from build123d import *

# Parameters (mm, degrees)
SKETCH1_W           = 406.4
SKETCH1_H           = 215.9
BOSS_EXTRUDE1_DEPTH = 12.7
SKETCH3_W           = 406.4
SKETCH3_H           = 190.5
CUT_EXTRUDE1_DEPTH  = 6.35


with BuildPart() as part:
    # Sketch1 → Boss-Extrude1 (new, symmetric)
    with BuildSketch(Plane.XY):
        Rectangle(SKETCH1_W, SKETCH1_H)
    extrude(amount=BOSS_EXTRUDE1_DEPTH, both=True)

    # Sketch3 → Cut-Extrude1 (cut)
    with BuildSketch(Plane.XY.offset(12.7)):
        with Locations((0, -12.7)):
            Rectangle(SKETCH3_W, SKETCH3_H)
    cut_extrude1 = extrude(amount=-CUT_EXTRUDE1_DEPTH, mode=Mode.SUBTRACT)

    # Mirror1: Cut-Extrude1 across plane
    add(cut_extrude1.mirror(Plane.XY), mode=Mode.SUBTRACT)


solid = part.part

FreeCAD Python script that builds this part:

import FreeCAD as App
import Part
import Sketcher
Q = App.Units.Quantity


def add_polygon(sketch, points):
    """Adds a closed chain of lines whose ends are joined by coincident constraints."""
    first, n = sketch.GeometryCount, len(points)
    for a, b in zip(points, points[1:] + points[:1]):
        sketch.addGeometry(Part.LineSegment(App.Vector(*a, 0), App.Vector(*b, 0)), False)
    for i in range(n):
        sketch.addConstraint(Sketcher.Constraint("Coincident", first + i, 2, first + (i + 1) % n, 1))

doc = App.newDocument("Part")
body = doc.addObject("PartDesign::Body", "Body")

# Sketch on XY plane
sketch1 = body.newObject("Sketcher::SketchObject", "Sketch")
sketch1.AttachmentSupport = (doc.getObject("XY_Plane"), [""])
sketch1.MapMode = "FlatFace"
add_polygon(sketch1, [(-203.2, 107.95), (-203.2, -107.95), (203.2, -107.95), (203.2, 107.95)])  # lines 0-3
sketch1.addConstraint([
    Sketcher.Constraint("Vertical", 0),
    Sketcher.Constraint("Horizontal", 1),
    Sketcher.Constraint("Vertical", 2),
    Sketcher.Constraint("Horizontal", 3),
    Sketcher.Constraint("Symmetric", 0, 2, 2, 2, -1, 1),
    Sketcher.Constraint("DistanceX", 1, 1, 1, 2, Q("16 in")),
    Sketcher.Constraint("DistanceY", 0, 2, 0, 1, Q("8.5 in")),
])
pad1 = body.newObject("PartDesign::Pad", "Pad")
pad1.Profile = sketch1
pad1.Length = Q("1 in")
pad1.Midplane = True

# Sketch on XY plane
sketch2 = body.newObject("Sketcher::SketchObject", "Sketch001")
sketch2.AttachmentSupport = (doc.getObject("XY_Plane"), [""])
sketch2.MapMode = "FlatFace"
sketch2.AttachmentOffset = App.Placement(App.Vector(0, 0, 0.5 * 25.4), App.Rotation())
add_polygon(sketch2, [(-203.2, 82.55), (-203.2, -107.95), (203.2, -107.95), (203.2, 82.55)])  # lines 0-3
sketch2.addConstraint([
    Sketcher.Constraint("Vertical", 0),
    Sketcher.Constraint("Horizontal", 1),
    Sketcher.Constraint("Vertical", 2),
    Sketcher.Constraint("Horizontal", 3),
    Sketcher.Constraint("DistanceX", 1, 1, 1, 2, Q("16 in")),
    Sketcher.Constraint("DistanceY", 0, 2, 0, 1, Q("7.5 in")),
    Sketcher.Constraint("DistanceX", 0, 2, -1, 1, Q("8 in")),
    Sketcher.Constraint("DistanceY", 0, 2, -1, 1, Q("4.25 in")),
])
pocket1 = body.newObject("PartDesign::Pocket", "Pocket")
pocket1.Profile = sketch2
pocket1.Length = Q("0.25 in")
doc.recompute()

mirrored = body.newObject("PartDesign::Mirrored", "Mirrored")
mirrored.Originals = [pocket1]
mirrored.MirrorPlane = (doc.getObject("XY_Plane"), [""])
body.Tip = mirrored

doc.recompute()
